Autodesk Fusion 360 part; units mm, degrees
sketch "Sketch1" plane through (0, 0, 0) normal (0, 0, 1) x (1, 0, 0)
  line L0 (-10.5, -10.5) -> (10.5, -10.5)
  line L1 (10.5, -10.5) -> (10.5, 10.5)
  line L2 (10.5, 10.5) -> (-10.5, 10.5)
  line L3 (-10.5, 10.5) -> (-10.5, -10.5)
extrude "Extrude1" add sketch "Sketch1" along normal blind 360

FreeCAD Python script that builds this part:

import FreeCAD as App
import Part
import Sketcher
Q = App.Units.Quantity

doc = App.newDocument("Part")
body = doc.addObject("PartDesign::Body", "Body")

sketch1 = body.newObject("Sketcher::SketchObject", "Sketch")
sketch1.AttachmentSupport = (doc.getObject("XY_Plane"), [""])
sketch1.MapMode = "FlatFace"
sketch1.addGeometry(Part.LineSegment(App.Vector(-10, 10, 0), App.Vector(-10, -10, 0)), False)
sketch1.addGeometry(Part.LineSegment(App.Vector(-10, -10, 0), App.Vector(10, -10, 0)), False)
sketch1.addGeometry(Part.LineSegment(App.Vector(10, -10, 0), App.Vector(10, 10, 0)), False)
sketch1.addGeometry(Part.LineSegment(App.Vector(10, 10, 0), App.Vector(-10, 10, 0)), False)
sketch1.addConstraint(Sketcher.Constraint("Coincident", 0, 2, 1, 1))
sketch1.addConstraint(Sketcher.Constraint("Coincident", 1, 2, 2, 1))
sketch1.addConstraint(Sketcher.Constraint("Coincident", 2, 2, 3, 1))
sketch1.addConstraint(Sketcher.Constraint("Coincident", 3, 2, 0, 1))
sketch1.addConstraint(Sketcher.Constraint("Vertical", 0))
sketch1.addConstraint(Sketcher.Constraint("Horizontal", 1))
sketch1.addConstraint(Sketcher.Constraint("Vertical", 2))
sketch1.addConstraint(Sketcher.Constraint("Horizontal", 3))
sketch1.addConstraint(Sketcher.Constraint("Symmetric", 0, 2, 2, 2, -1, 1))
sketch1.addConstraint(Sketcher.Constraint("Equal", 3, 0))
sketch1.addConstraint(Sketcher.Constraint("DistanceX", 1, 1, 1, 2, Q("21 mm")))
pad1 = body.newObject("PartDesign::Pad", "Pad")
pad1.Profile = sketch1
pad1.Length = 360

doc.recompute()
